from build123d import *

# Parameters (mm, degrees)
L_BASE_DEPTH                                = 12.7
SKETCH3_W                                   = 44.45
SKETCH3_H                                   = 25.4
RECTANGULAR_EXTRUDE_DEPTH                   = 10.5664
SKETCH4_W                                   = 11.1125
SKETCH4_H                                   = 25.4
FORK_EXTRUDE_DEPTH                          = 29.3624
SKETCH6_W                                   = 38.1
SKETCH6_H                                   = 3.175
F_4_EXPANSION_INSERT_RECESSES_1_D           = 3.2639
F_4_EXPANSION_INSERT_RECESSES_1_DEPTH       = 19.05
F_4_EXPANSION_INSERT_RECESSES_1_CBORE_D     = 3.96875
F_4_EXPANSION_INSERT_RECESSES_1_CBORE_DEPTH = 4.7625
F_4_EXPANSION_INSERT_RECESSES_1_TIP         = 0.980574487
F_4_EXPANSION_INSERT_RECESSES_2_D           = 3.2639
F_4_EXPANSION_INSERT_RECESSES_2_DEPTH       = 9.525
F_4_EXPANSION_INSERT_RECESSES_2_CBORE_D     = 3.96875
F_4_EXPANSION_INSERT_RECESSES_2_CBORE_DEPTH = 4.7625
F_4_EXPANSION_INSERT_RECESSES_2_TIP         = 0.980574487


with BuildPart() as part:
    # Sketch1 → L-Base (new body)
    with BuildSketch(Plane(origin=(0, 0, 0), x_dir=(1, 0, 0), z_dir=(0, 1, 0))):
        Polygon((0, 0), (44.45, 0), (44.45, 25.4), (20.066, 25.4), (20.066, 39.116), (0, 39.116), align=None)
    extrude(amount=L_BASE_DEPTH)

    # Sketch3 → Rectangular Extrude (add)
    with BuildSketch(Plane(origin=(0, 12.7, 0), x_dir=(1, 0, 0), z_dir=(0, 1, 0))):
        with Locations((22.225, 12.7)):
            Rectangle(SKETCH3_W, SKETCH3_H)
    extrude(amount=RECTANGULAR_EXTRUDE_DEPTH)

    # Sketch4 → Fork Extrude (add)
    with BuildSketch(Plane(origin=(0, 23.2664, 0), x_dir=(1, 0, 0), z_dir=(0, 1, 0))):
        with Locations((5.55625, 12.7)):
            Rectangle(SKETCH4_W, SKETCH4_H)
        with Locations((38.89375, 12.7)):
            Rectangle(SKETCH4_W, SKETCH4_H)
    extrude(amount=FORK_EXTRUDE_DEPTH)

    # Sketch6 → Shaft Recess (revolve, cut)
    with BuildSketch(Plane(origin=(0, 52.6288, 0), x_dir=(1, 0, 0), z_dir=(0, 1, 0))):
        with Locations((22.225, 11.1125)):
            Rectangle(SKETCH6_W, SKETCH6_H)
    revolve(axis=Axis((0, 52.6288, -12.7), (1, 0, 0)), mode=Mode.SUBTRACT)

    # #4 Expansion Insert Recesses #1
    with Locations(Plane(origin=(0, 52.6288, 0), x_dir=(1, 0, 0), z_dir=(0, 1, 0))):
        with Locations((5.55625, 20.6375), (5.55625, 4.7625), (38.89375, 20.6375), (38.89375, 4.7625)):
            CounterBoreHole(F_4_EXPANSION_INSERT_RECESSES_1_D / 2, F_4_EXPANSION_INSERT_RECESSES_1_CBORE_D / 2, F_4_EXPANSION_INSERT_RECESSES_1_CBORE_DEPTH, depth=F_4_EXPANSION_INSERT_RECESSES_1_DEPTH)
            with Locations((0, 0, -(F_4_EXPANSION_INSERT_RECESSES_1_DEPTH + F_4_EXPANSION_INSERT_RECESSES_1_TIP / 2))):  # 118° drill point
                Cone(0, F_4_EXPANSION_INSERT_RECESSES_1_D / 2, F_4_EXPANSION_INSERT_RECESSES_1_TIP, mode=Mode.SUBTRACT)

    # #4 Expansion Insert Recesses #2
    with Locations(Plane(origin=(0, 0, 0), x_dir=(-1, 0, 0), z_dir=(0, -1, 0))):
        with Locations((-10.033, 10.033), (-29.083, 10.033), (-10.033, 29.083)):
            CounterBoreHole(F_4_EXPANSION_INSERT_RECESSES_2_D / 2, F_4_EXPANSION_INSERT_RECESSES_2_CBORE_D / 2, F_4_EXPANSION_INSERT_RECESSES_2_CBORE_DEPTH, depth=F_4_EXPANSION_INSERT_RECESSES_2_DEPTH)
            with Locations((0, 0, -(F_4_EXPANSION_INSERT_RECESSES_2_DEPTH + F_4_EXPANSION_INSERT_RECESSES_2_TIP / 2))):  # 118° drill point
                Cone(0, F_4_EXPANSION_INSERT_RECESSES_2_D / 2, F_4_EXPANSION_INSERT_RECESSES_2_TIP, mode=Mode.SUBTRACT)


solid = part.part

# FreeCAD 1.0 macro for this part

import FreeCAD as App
import Part
import Sketcher
from FreeCAD import Vector
Q = App.Units.Quantity


def add_polygon(sketch, points):
    """Adds a closed chain of lines whose ends are joined by coincident constraints."""
    first, n = sketch.GeometryCount, len(points)
    for a, b in zip(points, points[1:] + points[:1]):
        sketch.addGeometry(Part.LineSegment(App.Vector(*a, 0), App.Vector(*b, 0)), False)
    for i in range(n):
        sketch.addConstraint(Sketcher.Constraint("Coincident", first + i, 2, first + (i + 1) % n, 1))

doc = App.newDocument("Part")
body = doc.addObject("PartDesign::Body", "Body")

# Sketch on XZ plane
sketch1 = body.newObject("Sketcher::SketchObject", "Sketch")
sketch1.AttachmentSupport = (doc.getObject("XZ_Plane"), [""])
sketch1.MapMode = "FlatFace"
add_polygon(sketch1, [(0, 0), (44, 0), (44, -25), (20, -25), (20, -39), (0, -39)])  # lines 0-5
sketch1.addConstraint([
    Sketcher.Constraint("Horizontal", 0),
    Sketcher.Constraint("Vertical", 1),
    Sketcher.Constraint("Horizontal", 2),
    Sketcher.Constraint("Vertical", 3),
    Sketcher.Constraint("Horizontal", 4),
    Sketcher.Constraint("Vertical", 5),
    Sketcher.Constraint("Coincident", 5, 2, -1, 1),
    Sketcher.Constraint("DistanceY", 1, 2, 1, 1, Q("1 in")),
    Sketcher.Constraint("DistanceX", 0, 1, 0, 2, Q("1.75 in")),
    Sketcher.Constraint("DistanceX", 2, 2, 2, 1, Q("0.96 in")),
    Sketcher.Constraint("DistanceY", 3, 2, 3, 1, Q("0.54 in")),
])
pad1 = body.newObject("PartDesign::Pad", "Pad")
pad1.Profile = sketch1
pad1.Length = Q("0.5 in")
pad1.Reversed = True

# Sketch on XZ plane
sketch2 = body.newObject("Sketcher::SketchObject", "Sketch001")
sketch2.AttachmentSupport = (doc.getObject("XZ_Plane"), [""])
sketch2.MapMode = "FlatFace"
sketch2.AttachmentOffset = App.Placement(Vector(0, 0, -0.5 * 25.4), App.Rotation())
add_polygon(sketch2, [(0, -25), (0, 0), (44, 0), (44, -25)])  # lines 0-3
sketch2.addConstraint([
    Sketcher.Constraint("Vertical", 0),
    Sketcher.Constraint("Horizontal", 1),
    Sketcher.Constraint("Vertical", 2),
    Sketcher.Constraint("Horizontal", 3),
    Sketcher.Constraint("Coincident", 0, 2, -1, 1),
    Sketcher.Constraint("DistanceY", 0, 1, 0, 2, Q("1 in")),
    Sketcher.Constraint("DistanceX", 1, 1, 1, 2, Q("1.75 in")),
])
pad2 = body.newObject("PartDesign::Pad", "Pad001")
pad2.Profile = sketch2
pad2.Length = Q("0.416 in")
pad2.Reversed = True

# Sketch on XZ plane
sketch3 = body.newObject("Sketcher::SketchObject", "Sketch002")
sketch3.AttachmentSupport = (doc.getObject("XZ_Plane"), [""])
sketch3.MapMode = "FlatFace"
sketch3.AttachmentOffset = App.Placement(Vector(0, 0, -0.916 * 25.4), App.Rotation())
add_polygon(sketch3, [(0, -25), (0, 0), (11, 0), (11, -25)])  # lines 0-3
add_polygon(sketch3, [(33, -25), (33, 0), (44, 0), (44, -25)])  # lines 4-7
sketch3.addConstraint([
    Sketcher.Constraint("Vertical", 0),
    Sketcher.Constraint("Horizontal", 1),
    Sketcher.Constraint("Vertical", 2),
    Sketcher.Constraint("Horizontal", 3),
    Sketcher.Constraint("Vertical", 4),
    Sketcher.Constraint("Horizontal", 5),
    Sketcher.Constraint("Vertical", 6),
    Sketcher.Constraint("Horizontal", 7),
    Sketcher.Constraint("Coincident", 0, 2, -1, 1),
    Sketcher.Constraint("PointOnObject", 4, 2, -1),
    Sketcher.Constraint("Horizontal", 3, 2, 6, 2),
    Sketcher.Constraint("Equal", 3, 5),
    Sketcher.Constraint("DistanceY", 0, 1, 0, 2, Q("1 in")),
    Sketcher.Constraint("DistanceX", 1, 1, 1, 2, Q("0.4375 in")),
    Sketcher.Constraint("DistanceX", -1, 1, 5, 2, Q("1.75 in")),
])
pad3 = body.newObject("PartDesign::Pad", "Pad002")
pad3.Profile = sketch3
pad3.Length = Q("1.156 in")
pad3.Reversed = True

# Sketch on XZ plane
sketch4 = body.newObject("Sketcher::SketchObject", "Sketch003")
sketch4.AttachmentSupport = (doc.getObject("XZ_Plane"), [""])
sketch4.MapMode = "FlatFace"
sketch4.AttachmentOffset = App.Placement(Vector(0, 0, -2.072 * 25.4), App.Rotation())
add_polygon(sketch4, [(3.2, -12.7), (3.2, -9.5), (41.3, -9.5), (41.3, -12.7)])  # lines 0-3
sketch4.addGeometry(Part.LineSegment(Vector(3.2, -12.7, 0), Vector(41.3, -12.7, 0)), True)  # axis
sketch4.addConstraint([
    Sketcher.Constraint("Vertical", 0),
    Sketcher.Constraint("Horizontal", 1),
    Sketcher.Constraint("Vertical", 2),
    Sketcher.Constraint("Horizontal", 3),
    Sketcher.Constraint("Horizontal", 4),
    Sketcher.Constraint("Coincident", 4, 1, 3, 2),
    Sketcher.Constraint("Vertical", 1, 2, 4, 2),
    Sketcher.Constraint("DistanceX", 1, 1, 1, 2, Q("1.5 in")),
    Sketcher.Constraint("DistanceY", 2, 2, -1, 1, Q("0.5 in")),
    Sketcher.Constraint("DistanceY", 0, 1, 0, 2, Q("0.125 in")),
    Sketcher.Constraint("DistanceX", -1, 1, 0, 2, Q("0.125 in")),
])
groove = body.newObject("PartDesign::Groove", "Groove")
groove.Profile = sketch4
groove.ReferenceAxis = (sketch4, ["Axis0"])
groove.Angle = 360

# Sketch on XZ plane
sketch5 = body.newObject("Sketcher::SketchObject", "Sketch004")
sketch5.AttachmentSupport = (doc.getObject("XZ_Plane"), [""])
sketch5.MapMode = "FlatFace"
sketch5.AttachmentOffset = App.Placement(Vector(0, 0, -2.072 * 25.4), App.Rotation())
sketch5.addGeometry([
    Part.Circle(Vector(5.6, -20.6, 0), Vector(0, 0, 1), 1.6),
    Part.Circle(Vector(5.6, -4.8, 0), Vector(0, 0, 1), 1.6),
    Part.Circle(Vector(38.9, -20.6, 0), Vector(0, 0, 1), 1.6),
    Part.Circle(Vector(38.9, -4.8, 0), Vector(0, 0, 1), 1.6),
], False)
sketch5.addConstraint([
    Sketcher.Constraint("Equal", 0, 1),
    Sketcher.Constraint("Equal", 1, 2),
    Sketcher.Constraint("Equal", 2, 3),
    Sketcher.Constraint("Horizontal", 0, 3, 2, 3),
    Sketcher.Constraint("Horizontal", 1, 3, 3, 3),
    Sketcher.Constraint("Vertical", 0, 3, 1, 3),
    Sketcher.Constraint("Vertical", 2, 3, 3, 3),
    Sketcher.Constraint("Diameter", 0, Q("0.1285 in")),
    Sketcher.Constraint("DistanceX", -1, 1, 0, 3, Q("0.21875 in")),
    Sketcher.Constraint("DistanceY", 0, 3, -1, 1, Q("0.8125 in")),
    Sketcher.Constraint("DistanceY", 1, 3, -1, 1, Q("0.1875 in")),
    Sketcher.Constraint("DistanceX", -1, 1, 2, 3, Q("1.53125 in")),
])
doc.recompute()
hole = body.newObject("PartDesign::Hole", "Hole")
hole.Profile = sketch5
hole.ThreadType = "None"
hole.Diameter = Q("0.1285 in")
hole.DepthType = "Dimension"
hole.Depth = Q("0.75 in")
hole.DrillPoint = "Angled"
hole.DrillPointAngle = 118
hole.HoleCutType = "Counterbore"
hole.HoleCutDiameter = Q("0.15625 in")
hole.HoleCutDepth = Q("0.1875 in")
hole.Reversed = True

# Sketch on XZ plane
sketch6 = body.newObject("Sketcher::SketchObject", "Sketch005")
sketch6.AttachmentSupport = (doc.getObject("XZ_Plane"), [""])
sketch6.MapMode = "FlatFace"
sketch6.addGeometry([
    Part.Circle(Vector(10, -10, 0), Vector(0, 0, 1), 1.6),
    Part.Circle(Vector(29.1, -10, 0), Vector(0, 0, 1), 1.6),
    Part.Circle(Vector(10, -29.1, 0), Vector(0, 0, 1), 1.6),
], False)
sketch6.addConstraint([
    Sketcher.Constraint("Equal", 0, 1),
    Sketcher.Constraint("Equal", 1, 2),
    Sketcher.Constraint("Horizontal", 0, 3, 1, 3),
    Sketcher.Constraint("Vertical", 0, 3, 2, 3),
    Sketcher.Constraint("Diameter", 0, Q("0.1285 in")),
    Sketcher.Constraint("DistanceX", 0, 3, 1, 3, Q("0.75 in")),
    Sketcher.Constraint("DistanceY", 2, 3, 0, 3, Q("0.75 in")),
    Sketcher.Constraint("DistanceX", -1, 1, 0, 3, Q("0.395 in")),
    Sketcher.Constraint("DistanceY", 0, 3, -1, 1, Q("0.395 in")),
])
doc.recompute()
hole2 = body.newObject("PartDesign::Hole", "Hole001")
hole2.Profile = sketch6
hole2.ThreadType = "None"
hole2.Diameter = Q("0.1285 in")
hole2.DepthType = "Dimension"
hole2.Depth = Q("0.375 in")
hole2.DrillPoint = "Angled"
hole2.DrillPointAngle = 118
hole2.HoleCutType = "Counterbore"
hole2.HoleCutDiameter = Q("0.15625 in")
hole2.HoleCutDepth = Q("0.1875 in")

doc.recompute()
